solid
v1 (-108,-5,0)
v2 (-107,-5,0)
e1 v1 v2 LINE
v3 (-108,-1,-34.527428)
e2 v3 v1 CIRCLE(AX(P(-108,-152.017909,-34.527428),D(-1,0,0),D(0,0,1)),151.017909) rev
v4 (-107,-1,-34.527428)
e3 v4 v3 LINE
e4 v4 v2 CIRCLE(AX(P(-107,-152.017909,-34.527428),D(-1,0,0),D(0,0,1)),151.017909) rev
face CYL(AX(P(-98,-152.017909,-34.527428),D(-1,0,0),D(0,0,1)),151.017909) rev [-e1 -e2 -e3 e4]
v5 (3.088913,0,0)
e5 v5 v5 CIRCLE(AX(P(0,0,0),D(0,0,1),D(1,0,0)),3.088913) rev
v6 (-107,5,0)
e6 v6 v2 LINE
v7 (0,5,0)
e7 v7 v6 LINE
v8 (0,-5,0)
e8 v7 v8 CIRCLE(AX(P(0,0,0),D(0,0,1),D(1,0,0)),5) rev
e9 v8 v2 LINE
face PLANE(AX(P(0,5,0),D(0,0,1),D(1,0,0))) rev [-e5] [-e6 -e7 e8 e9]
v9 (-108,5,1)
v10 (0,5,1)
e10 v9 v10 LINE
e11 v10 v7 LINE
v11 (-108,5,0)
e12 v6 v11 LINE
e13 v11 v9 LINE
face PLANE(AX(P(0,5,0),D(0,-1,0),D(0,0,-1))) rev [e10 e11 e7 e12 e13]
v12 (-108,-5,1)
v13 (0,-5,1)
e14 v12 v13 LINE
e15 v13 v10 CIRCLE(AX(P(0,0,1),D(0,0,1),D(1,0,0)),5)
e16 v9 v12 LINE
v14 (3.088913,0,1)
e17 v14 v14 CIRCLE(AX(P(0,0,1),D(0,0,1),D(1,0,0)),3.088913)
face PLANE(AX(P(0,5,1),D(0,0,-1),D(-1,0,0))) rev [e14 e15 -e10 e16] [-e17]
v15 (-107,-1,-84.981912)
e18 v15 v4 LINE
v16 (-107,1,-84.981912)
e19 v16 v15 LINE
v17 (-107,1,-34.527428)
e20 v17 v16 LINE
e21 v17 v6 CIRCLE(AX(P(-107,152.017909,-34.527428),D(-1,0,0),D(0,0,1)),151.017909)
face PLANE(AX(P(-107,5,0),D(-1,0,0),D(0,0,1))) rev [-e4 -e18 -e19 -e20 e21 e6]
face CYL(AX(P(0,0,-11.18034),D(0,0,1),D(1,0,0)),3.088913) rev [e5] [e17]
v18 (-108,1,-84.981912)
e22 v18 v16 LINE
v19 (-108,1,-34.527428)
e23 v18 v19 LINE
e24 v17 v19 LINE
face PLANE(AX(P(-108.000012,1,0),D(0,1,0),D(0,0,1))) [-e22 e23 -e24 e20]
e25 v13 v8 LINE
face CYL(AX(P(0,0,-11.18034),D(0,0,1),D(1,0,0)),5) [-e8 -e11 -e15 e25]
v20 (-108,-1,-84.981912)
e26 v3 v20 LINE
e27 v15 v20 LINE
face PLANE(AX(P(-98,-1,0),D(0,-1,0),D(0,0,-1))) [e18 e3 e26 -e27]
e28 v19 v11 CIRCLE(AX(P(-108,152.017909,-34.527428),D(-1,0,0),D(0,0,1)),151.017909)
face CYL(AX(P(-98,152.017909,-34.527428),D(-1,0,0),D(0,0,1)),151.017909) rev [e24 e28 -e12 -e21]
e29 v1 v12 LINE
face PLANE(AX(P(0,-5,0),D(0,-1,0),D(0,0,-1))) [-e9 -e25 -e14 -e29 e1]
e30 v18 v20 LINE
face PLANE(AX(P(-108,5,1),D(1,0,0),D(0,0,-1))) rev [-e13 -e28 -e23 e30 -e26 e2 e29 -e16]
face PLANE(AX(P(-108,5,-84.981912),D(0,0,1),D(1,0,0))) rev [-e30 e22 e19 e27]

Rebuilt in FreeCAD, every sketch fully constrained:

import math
import FreeCAD as App
import Part
import Sketcher

V = App.Vector
Q = App.Units.Quantity


def add_polygon(sketch, points):
    """Adds a closed chain of lines whose ends are joined by coincident constraints."""
    first, n = sketch.GeometryCount, len(points)
    for a, b in zip(points, points[1:] + points[:1]):
        sketch.addGeometry(Part.LineSegment(App.Vector(*a, 0), App.Vector(*b, 0)), False)
    for i in range(n):
        sketch.addConstraint(Sketcher.Constraint("Coincident", first + i, 2, first + (i + 1) % n, 1))

doc = App.newDocument("Part")
body = doc.addObject("PartDesign::Body", "Body")

# Sketch on XZ plane
sketch1 = body.newObject("Sketcher::SketchObject", "Sketch")
sketch1.AttachmentSupport = (doc.getObject("XZ_Plane"), [""])
sketch1.MapMode = "FlatFace"
add_polygon(sketch1, [(0, 0), (-107, 0), (-107, -85), (-108, -85), (-108, 1), (0, 1)])  # lines 0-5
sketch1.addConstraint(Sketcher.Constraint("Horizontal", 0))
sketch1.addConstraint(Sketcher.Constraint("Vertical", 1))
sketch1.addConstraint(Sketcher.Constraint("Horizontal", 2))
sketch1.addConstraint(Sketcher.Constraint("Vertical", 3))
sketch1.addConstraint(Sketcher.Constraint("Horizontal", 4))
sketch1.addConstraint(Sketcher.Constraint("Vertical", 5))
sketch1.addConstraint(Sketcher.Constraint("Coincident", 5, 2, -1, 1))
sketch1.addConstraint(Sketcher.Constraint("Equal", 2, 5))
sketch1.addConstraint(Sketcher.Constraint("DistanceX", 0, 2, 0, 1, Q("107 mm")))
sketch1.addConstraint(Sketcher.Constraint("DistanceX", 2, 2, 2, 1, Q("1 mm")))
sketch1.addConstraint(Sketcher.Constraint("DistanceY", 1, 2, 1, 1, Q("84.981912 mm")))
pad1 = body.newObject("PartDesign::Pad", "Pad")
pad1.Profile = sketch1
pad1.Length = 10
pad1.Midplane = True

# Sketch on XY plane
sketch2 = body.newObject("Sketcher::SketchObject", "Sketch001")
sketch2.AttachmentSupport = (doc.getObject("XY_Plane"), [""])
sketch2.MapMode = "FlatFace"
sketch2.AttachmentOffset = App.Placement(V(0, 0, 1), App.Rotation())
sketch2.addGeometry(Part.Circle(V(0, 0, 0), V(0, 0, 1), 5), False)
sketch2.addGeometry(Part.Circle(V(0, 0, 0), V(0, 0, 1), 3.1), False)
sketch2.addConstraint(Sketcher.Constraint("Coincident", 0, 3, -1, 1))
sketch2.addConstraint(Sketcher.Constraint("Coincident", 1, 3, -1, 1))
sketch2.addConstraint(Sketcher.Constraint("Diameter", 0, Q("10 mm")))
sketch2.addConstraint(Sketcher.Constraint("Diameter", 1, Q("6.177826 mm")))
pad2 = body.newObject("PartDesign::Pad", "Pad001")
pad2.Profile = sketch2
pad2.Length = 1
pad2.Reversed = True

# Sketch on XY plane
sketch3 = body.newObject("Sketcher::SketchObject", "Sketch002")
sketch3.AttachmentSupport = (doc.getObject("XY_Plane"), [""])
sketch3.MapMode = "FlatFace"
sketch3.AttachmentOffset = App.Placement(V(0, 0, 1), App.Rotation())
sketch3.addGeometry(Part.Circle(V(0, 0, 0), V(0, 0, 1), 3.1), False)
sketch3.addConstraint(Sketcher.Constraint("Coincident", 0, 3, -1, 1))
sketch3.addConstraint(Sketcher.Constraint("Diameter", 0, Q("6.177826 mm")))
pocket1 = body.newObject("PartDesign::Pocket", "Pocket")
pocket1.Profile = sketch3
pocket1.Length = 1

# Sketch on YZ plane
sketch4 = body.newObject("Sketcher::SketchObject", "Sketch003")
sketch4.AttachmentSupport = (doc.getObject("YZ_Plane"), [""])
sketch4.MapMode = "FlatFace"
sketch4.AttachmentOffset = App.Placement(V(0, 0, -108), App.Rotation())
sketch4.addGeometry(Part.LineSegment(V(5, -85, 0), V(1, -85, 0)), False)
sketch4.addGeometry(Part.LineSegment(V(1, -85, 0), V(1, -34.5, 0)), False)
sketch4.addGeometry(Part.ArcOfCircle(Part.Circle(V(152, -34.5, 0), V(0, 0, 1), 151), math.radians(166.78), math.radians(180)), False)
sketch4.addGeometry(Part.LineSegment(V(5, 0, 0), V(5, -85, 0)), False)
sketch4.addGeometry(Part.LineSegment(V(-1, -34.5, 0), V(-1, -85, 0)), False)
sketch4.addGeometry(Part.LineSegment(V(-1, -85, 0), V(-5, -85, 0)), False)
sketch4.addGeometry(Part.LineSegment(V(-5, -85, 0), V(-5, 0, 0)), False)
sketch4.addGeometry(Part.ArcOfCircle(Part.Circle(V(-152, -34.5, 0), V(0, 0, 1), 151), math.radians(0), math.radians(13.22)), False)
sketch4.addConstraint(Sketcher.Constraint("Coincident", 0, 2, 1, 1))
sketch4.addConstraint(Sketcher.Constraint("Tangent", 1, 2, 2, 2))
sketch4.addConstraint(Sketcher.Constraint("Coincident", 2, 1, 3, 1))
sketch4.addConstraint(Sketcher.Constraint("Coincident", 3, 2, 0, 1))
sketch4.addConstraint(Sketcher.Constraint("Coincident", 4, 2, 5, 1))
sketch4.addConstraint(Sketcher.Constraint("Coincident", 5, 2, 6, 1))
sketch4.addConstraint(Sketcher.Constraint("Coincident", 6, 2, 7, 2))
sketch4.addConstraint(Sketcher.Constraint("Tangent", 7, 1, 4, 1))
sketch4.addConstraint(Sketcher.Constraint("Horizontal", 0))
sketch4.addConstraint(Sketcher.Constraint("Vertical", 1))
sketch4.addConstraint(Sketcher.Constraint("Vertical", 3))
sketch4.addConstraint(Sketcher.Constraint("Vertical", 4))
sketch4.addConstraint(Sketcher.Constraint("Horizontal", 5))
sketch4.addConstraint(Sketcher.Constraint("Vertical", 6))
sketch4.addConstraint(Sketcher.Constraint("Equal", 2, 7))
sketch4.addConstraint(Sketcher.Constraint("Symmetric", 2, 1, 6, 2, -1, 1))
sketch4.addConstraint(Sketcher.Constraint("Symmetric", 2, 3, 7, 3, -2))
sketch4.addConstraint(Sketcher.Constraint("Horizontal", 3, 2, 4, 2))
sketch4.addConstraint(Sketcher.Constraint("DistanceX", 0, 2, 0, 1, Q("4 mm")))
sketch4.addConstraint(Sketcher.Constraint("DistanceX", -1, 1, 0, 2, Q("1 mm")))
sketch4.addConstraint(Sketcher.Constraint("Radius", 2, Q("151.017909 mm")))
sketch4.addConstraint(Sketcher.Constraint("DistanceY", 3, 2, 3, 1, Q("84.981912 mm")))
pocket2 = body.newObject("PartDesign::Pocket", "Pocket001")
pocket2.Profile = sketch4
pocket2.Type = "ThroughAll"
pocket2.Midplane = True

doc.recompute()
